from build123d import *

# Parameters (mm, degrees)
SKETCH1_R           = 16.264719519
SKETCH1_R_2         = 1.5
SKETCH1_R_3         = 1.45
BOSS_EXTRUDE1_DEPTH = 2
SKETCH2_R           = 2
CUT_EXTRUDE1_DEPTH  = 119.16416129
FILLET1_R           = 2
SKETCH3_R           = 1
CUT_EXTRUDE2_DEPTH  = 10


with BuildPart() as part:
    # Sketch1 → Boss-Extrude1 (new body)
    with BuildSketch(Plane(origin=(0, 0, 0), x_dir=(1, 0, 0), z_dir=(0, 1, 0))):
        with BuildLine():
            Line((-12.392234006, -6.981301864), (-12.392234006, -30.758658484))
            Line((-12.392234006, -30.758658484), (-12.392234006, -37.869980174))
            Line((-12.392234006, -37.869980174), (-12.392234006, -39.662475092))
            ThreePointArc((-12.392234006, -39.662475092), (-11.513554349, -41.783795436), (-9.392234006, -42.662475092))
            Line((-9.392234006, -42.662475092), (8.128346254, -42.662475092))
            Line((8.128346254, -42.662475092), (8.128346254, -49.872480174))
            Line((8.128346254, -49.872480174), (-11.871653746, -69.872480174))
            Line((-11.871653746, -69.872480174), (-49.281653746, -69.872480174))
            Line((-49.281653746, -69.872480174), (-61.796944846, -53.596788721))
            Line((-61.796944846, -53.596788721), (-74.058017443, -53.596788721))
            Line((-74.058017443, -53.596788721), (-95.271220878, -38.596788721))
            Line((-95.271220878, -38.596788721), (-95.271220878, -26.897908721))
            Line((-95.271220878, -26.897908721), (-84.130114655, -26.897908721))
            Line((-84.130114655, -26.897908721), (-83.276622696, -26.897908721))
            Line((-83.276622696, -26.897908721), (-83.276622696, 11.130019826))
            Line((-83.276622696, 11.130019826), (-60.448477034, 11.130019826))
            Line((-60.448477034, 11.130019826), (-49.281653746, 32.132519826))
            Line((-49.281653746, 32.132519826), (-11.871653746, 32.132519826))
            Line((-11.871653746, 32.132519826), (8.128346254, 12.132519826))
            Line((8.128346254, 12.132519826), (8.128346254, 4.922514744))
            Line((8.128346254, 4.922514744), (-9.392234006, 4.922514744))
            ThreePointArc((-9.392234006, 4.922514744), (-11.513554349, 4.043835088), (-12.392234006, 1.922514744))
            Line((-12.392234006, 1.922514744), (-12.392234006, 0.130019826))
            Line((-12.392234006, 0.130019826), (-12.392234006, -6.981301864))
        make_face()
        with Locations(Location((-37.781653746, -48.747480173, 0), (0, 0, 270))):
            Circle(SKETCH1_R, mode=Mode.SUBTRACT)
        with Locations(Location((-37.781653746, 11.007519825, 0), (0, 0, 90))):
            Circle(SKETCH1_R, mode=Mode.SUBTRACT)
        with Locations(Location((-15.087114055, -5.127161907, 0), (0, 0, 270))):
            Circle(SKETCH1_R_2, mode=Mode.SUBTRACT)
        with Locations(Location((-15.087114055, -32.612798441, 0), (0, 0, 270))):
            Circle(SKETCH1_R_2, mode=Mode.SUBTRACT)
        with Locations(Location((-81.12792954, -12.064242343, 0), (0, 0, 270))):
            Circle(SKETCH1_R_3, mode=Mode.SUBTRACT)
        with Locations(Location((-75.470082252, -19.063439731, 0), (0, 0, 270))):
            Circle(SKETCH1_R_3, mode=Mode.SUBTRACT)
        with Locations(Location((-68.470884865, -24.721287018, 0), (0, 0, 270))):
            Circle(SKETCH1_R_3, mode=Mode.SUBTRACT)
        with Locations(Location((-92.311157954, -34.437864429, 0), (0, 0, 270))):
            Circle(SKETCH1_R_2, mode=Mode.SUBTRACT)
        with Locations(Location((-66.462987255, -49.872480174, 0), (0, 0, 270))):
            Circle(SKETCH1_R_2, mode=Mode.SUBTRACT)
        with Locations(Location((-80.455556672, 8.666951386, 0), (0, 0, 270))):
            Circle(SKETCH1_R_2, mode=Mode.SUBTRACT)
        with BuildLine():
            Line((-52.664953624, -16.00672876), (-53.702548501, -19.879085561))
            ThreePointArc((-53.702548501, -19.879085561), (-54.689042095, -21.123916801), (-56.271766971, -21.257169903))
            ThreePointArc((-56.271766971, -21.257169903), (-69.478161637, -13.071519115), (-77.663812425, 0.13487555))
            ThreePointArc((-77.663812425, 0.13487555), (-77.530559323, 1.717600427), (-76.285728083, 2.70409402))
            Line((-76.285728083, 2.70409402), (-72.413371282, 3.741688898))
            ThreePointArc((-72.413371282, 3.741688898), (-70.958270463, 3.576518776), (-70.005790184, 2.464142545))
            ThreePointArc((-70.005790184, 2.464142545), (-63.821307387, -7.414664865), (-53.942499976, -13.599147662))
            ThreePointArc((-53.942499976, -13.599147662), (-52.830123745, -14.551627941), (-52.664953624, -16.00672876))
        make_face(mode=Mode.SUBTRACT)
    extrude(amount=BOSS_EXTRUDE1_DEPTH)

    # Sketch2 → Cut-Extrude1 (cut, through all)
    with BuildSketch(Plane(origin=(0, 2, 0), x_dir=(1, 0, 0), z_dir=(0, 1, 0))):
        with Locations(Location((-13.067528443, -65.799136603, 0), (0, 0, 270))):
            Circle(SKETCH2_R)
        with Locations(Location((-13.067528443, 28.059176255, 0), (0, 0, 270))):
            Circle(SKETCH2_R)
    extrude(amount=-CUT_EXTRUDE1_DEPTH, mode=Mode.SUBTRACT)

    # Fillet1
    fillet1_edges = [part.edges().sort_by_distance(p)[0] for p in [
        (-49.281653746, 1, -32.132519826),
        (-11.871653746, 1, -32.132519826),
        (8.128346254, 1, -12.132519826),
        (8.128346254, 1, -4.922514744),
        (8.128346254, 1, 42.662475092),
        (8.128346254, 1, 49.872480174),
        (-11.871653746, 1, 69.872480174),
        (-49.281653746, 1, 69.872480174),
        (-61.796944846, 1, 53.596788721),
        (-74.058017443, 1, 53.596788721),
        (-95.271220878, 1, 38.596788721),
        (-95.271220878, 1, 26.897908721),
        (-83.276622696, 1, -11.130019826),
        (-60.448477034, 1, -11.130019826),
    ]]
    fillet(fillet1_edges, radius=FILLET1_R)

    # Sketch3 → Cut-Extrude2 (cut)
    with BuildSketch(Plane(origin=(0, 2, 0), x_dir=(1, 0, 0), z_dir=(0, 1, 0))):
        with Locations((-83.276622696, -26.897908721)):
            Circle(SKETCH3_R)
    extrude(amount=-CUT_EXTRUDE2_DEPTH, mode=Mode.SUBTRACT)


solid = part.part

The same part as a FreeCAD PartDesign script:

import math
import FreeCAD as App
import Part
import Sketcher
from FreeCAD import Vector


def edges_at(feature, points):
    """Names of the edges that pass closest to the given points."""
    edges = feature.Shape.Edges
    near = lambda p: min(range(len(edges)), key=lambda i: edges[i].distToShape(Part.Vertex(*p))[0])
    return sorted({f"Edge{near(p) + 1}" for p in points})

doc = App.newDocument("Part")
body = doc.addObject("PartDesign::Body", "Body")

# Sketch on XZ plane
sketch1 = body.newObject("Sketcher::SketchObject", "Sketch")
sketch1.AttachmentSupport = (doc.getObject("XZ_Plane"), [""])
sketch1.MapMode = "FlatFace"
sketch1.addGeometry([
    Part.ArcOfCircle(Part.Circle(Vector(-9.392234, 39.662475, 0), Vector(0, 0, 1), 3), math.radians(90), math.radians(180)),  # 0
    Part.LineSegment(Vector(-12.392234, 39.662475, 0), Vector(-12.392234, -1.922515, 0)),  # 1
    Part.ArcOfCircle(Part.Circle(Vector(-9.392234, -1.922515, 0), Vector(0, 0, 1), 3), math.radians(180), math.radians(270)),  # 2
    Part.LineSegment(Vector(-9.392234, -4.922515, 0), Vector(8.128346, -4.922515, 0)),  # 3
    Part.LineSegment(Vector(8.128346, -4.922515, 0), Vector(8.128346, -12.13252, 0)),  # 4
    Part.LineSegment(Vector(8.128346, -12.13252, 0), Vector(-11.871654, -32.13252, 0)),  # 5
    Part.LineSegment(Vector(-11.871654, -32.13252, 0), Vector(-49.281654, -32.13252, 0)),  # 6
    Part.LineSegment(Vector(-49.281654, -32.13252, 0), Vector(-60.448477, -11.13002, 0)),  # 7
    Part.LineSegment(Vector(-60.448477, -11.13002, 0), Vector(-83.276623, -11.13002, 0)),  # 8
    Part.LineSegment(Vector(-83.276623, -11.13002, 0), Vector(-83.276623, 26.897909, 0)),  # 9
    Part.LineSegment(Vector(-83.276623, 26.897909, 0), Vector(-95.271221, 26.897909, 0)),  # 10
    Part.LineSegment(Vector(-95.271221, 26.897909, 0), Vector(-95.271221, 38.596789, 0)),  # 11
    Part.LineSegment(Vector(-95.271221, 38.596789, 0), Vector(-74.058017, 53.596789, 0)),  # 12
    Part.LineSegment(Vector(-74.058017, 53.596789, 0), Vector(-61.796945, 53.596789, 0)),  # 13
    Part.LineSegment(Vector(-61.796945, 53.596789, 0), Vector(-49.281654, 69.87248, 0)),  # 14
    Part.LineSegment(Vector(-49.281654, 69.87248, 0), Vector(-11.871654, 69.87248, 0)),  # 15
    Part.LineSegment(Vector(-11.871654, 69.87248, 0), Vector(8.128346, 49.87248, 0)),  # 16
    Part.LineSegment(Vector(8.128346, 49.87248, 0), Vector(8.128346, 42.662475, 0)),  # 17
    Part.LineSegment(Vector(8.128346, 42.662475, 0), Vector(-9.392234, 42.662475, 0)),  # 18
    Part.Circle(Vector(-37.781654, 48.74748, 0), Vector(0, 0, 1), 16.26472),  # 19
    Part.Circle(Vector(-15.087114, 32.612798, 0), Vector(0, 0, 1), 1.5),  # 20
    Part.Circle(Vector(-66.462987, 49.87248, 0), Vector(0, 0, 1), 1.5),  # 21
    Part.Circle(Vector(-68.470885, 24.721287, 0), Vector(0, 0, 1), 1.45),  # 22
    Part.Circle(Vector(-92.311158, 34.437864, 0), Vector(0, 0, 1), 1.5),  # 23
    Part.Circle(Vector(-75.470082, 19.06344, 0), Vector(0, 0, 1), 1.45),  # 24
    Part.Circle(Vector(-15.087114, 5.127162, 0), Vector(0, 0, 1), 1.5),  # 25
    Part.Circle(Vector(-37.781654, -11.00752, 0), Vector(0, 0, 1), 16.26472),  # 26
    Part.LineSegment(Vector(-52.664954, 16.006729, 0), Vector(-53.702549, 19.879086, 0)),  # 27
    Part.ArcOfCircle(Part.Circle(Vector(-55.6344, 19.361447, 0), Vector(0, 0, 1), 2), math.radians(15), math.radians(108.583322)),  # 28
    Part.ArcOfCircle(Part.Circle(Vector(-45.436531, -10.970111, 0), Vector(0, 0, 1), 34), math.radians(108.583322), math.radians(161.416678)),  # 29
    Part.ArcOfCircle(Part.Circle(Vector(-75.76809, -0.772242, 0), Vector(0, 0, 1), 2), math.radians(161.416678), math.radians(255)),  # 30
    Part.LineSegment(Vector(-76.285728, -2.704094, 0), Vector(-72.413371, -3.741689, 0)),  # 31
    Part.ArcOfCircle(Part.Circle(Vector(-71.895733, -1.809837, 0), Vector(0, 0, 1), 2), math.radians(-105), math.radians(-19.096044)),  # 32
    Part.ArcOfCircle(Part.Circle(Vector(-45.436531, -10.970111, 0), Vector(0, 0, 1), 26), math.radians(109.096044), math.radians(160.903956)),  # 33
    Part.ArcOfCircle(Part.Circle(Vector(-54.596805, 15.489091, 0), Vector(0, 0, 1), 2), math.radians(-70.903956), math.radians(15)),  # 34
    Part.Circle(Vector(-81.12793, 12.064242, 0), Vector(0, 0, 1), 1.45),  # 35
    Part.Circle(Vector(-80.455557, -8.666951, 0), Vector(0, 0, 1), 1.5),  # 36
], False)
sketch1.addConstraint([
    Sketcher.Constraint("Coincident", 0, 2, 1, 1),
    Sketcher.Constraint("Coincident", 1, 2, 2, 1),
    Sketcher.Constraint("Coincident", 2, 2, 3, 1),
    Sketcher.Constraint("Coincident", 3, 2, 4, 1),
    Sketcher.Constraint("Coincident", 4, 2, 5, 1),
    Sketcher.Constraint("Coincident", 5, 2, 6, 1),
    Sketcher.Constraint("Coincident", 6, 2, 7, 1),
    Sketcher.Constraint("Coincident", 7, 2, 8, 1),
    Sketcher.Constraint("Coincident", 8, 2, 9, 1),
    Sketcher.Constraint("Coincident", 9, 2, 10, 1),
    Sketcher.Constraint("Coincident", 10, 2, 11, 1),
    Sketcher.Constraint("Coincident", 11, 2, 12, 1),
    Sketcher.Constraint("Coincident", 12, 2, 13, 1),
    Sketcher.Constraint("Coincident", 13, 2, 14, 1),
    Sketcher.Constraint("Coincident", 14, 2, 15, 1),
    Sketcher.Constraint("Coincident", 15, 2, 16, 1),
    Sketcher.Constraint("Coincident", 16, 2, 17, 1),
    Sketcher.Constraint("Coincident", 17, 2, 18, 1),
    Sketcher.Constraint("Coincident", 18, 2, 0, 1),
    Sketcher.Constraint("Coincident", 27, 2, 28, 1),
    Sketcher.Constraint("Coincident", 28, 2, 29, 1),
    Sketcher.Constraint("Coincident", 29, 2, 30, 1),
    Sketcher.Constraint("Coincident", 30, 2, 31, 1),
    Sketcher.Constraint("Coincident", 31, 2, 32, 1),
    Sketcher.Constraint("Coincident", 32, 2, 33, 2),
    Sketcher.Constraint("Coincident", 33, 1, 34, 1),
    Sketcher.Constraint("Coincident", 34, 2, 27, 1),
    Sketcher.Constraint("Vertical", 1),
    Sketcher.Constraint("Horizontal", 3),
    Sketcher.Constraint("Vertical", 4),
    Sketcher.Constraint("Horizontal", 6),
    Sketcher.Constraint("Horizontal", 8),
    Sketcher.Constraint("Vertical", 9),
    Sketcher.Constraint("Horizontal", 10),
    Sketcher.Constraint("Vertical", 11),
    Sketcher.Constraint("Horizontal", 13),
    Sketcher.Constraint("Horizontal", 15),
    Sketcher.Constraint("Vertical", 17),
    Sketcher.Constraint("Horizontal", 18),
    Sketcher.Constraint("Coincident", 33, 3, 29, 3),
    Sketcher.Constraint("Diameter", 20, 3.0),
    Sketcher.Constraint("Diameter", 21, 3.0),
    Sketcher.Constraint("Diameter", 23, 3.0),
    Sketcher.Constraint("Diameter", 25, 3.0),
    Sketcher.Constraint("Diameter", 36, 3.0),
    Sketcher.Constraint("Radius", 0, 3.0),
    Sketcher.Constraint("Radius", 2, 3.0),
    Sketcher.Constraint("Radius", 28, 2.0),
    Sketcher.Constraint("Radius", 29, 34.0),
    Sketcher.Constraint("Radius", 30, 2.0),
    Sketcher.Constraint("Radius", 32, 2.0),
    Sketcher.Constraint("Radius", 33, 26.0),
    Sketcher.Constraint("Radius", 34, 2.0),
    Sketcher.Constraint("Diameter", 22, 2.9),
    Sketcher.Constraint("Diameter", 24, 2.9),
    Sketcher.Constraint("Diameter", 35, 2.9),
    Sketcher.Constraint("DistanceX", 1, 2, 2, 2, 3.0),
    Sketcher.Constraint("DistanceY", 2, 2, 1, 2, 3.0),
    Sketcher.Constraint("DistanceX", 5, 2, 4, 2, 20.0),
    Sketcher.Constraint("DistanceY", 5, 2, 4, 2, 20.0),
    Sketcher.Constraint("DistanceY", 11, 2, 12, 2, 15.0),
    Sketcher.Constraint("DistanceY", 21, 3, 14, 2, 20.0),
    Sketcher.Constraint("DistanceX", 15, 2, 16, 2, 20.0),
    Sketcher.Constraint("DistanceY", 16, 2, 15, 2, 20.0),
    Sketcher.Constraint("DistanceY", 0, 2, 17, 2, 3.0),
    Sketcher.Constraint("DistanceX", 0, 2, 18, 2, 3.0),
    Sketcher.Constraint("DistanceX", 6, 2, 6, 1, 37.41),
    Sketcher.Constraint("DistanceX", 15, 1, 15, 2, 37.41),
    Sketcher.Constraint("DistanceX", 6, 2, 26, 3, 11.5),
    Sketcher.Constraint("DistanceX", 14, 2, 19, 3, 11.5),
    Sketcher.Constraint("Diameter", 19, 32.529439),
    Sketcher.Constraint("Diameter", 26, 32.529439),
    Sketcher.Constraint("DistanceX", 10, 2, 10, 1, 11.994598),
    Sketcher.Constraint("DistanceY", 19, 3, 21, 3, 1.125),
    Sketcher.Constraint("DistanceY", 5, 2, 26, 3, 21.125),
    Sketcher.Constraint("DistanceX", 3, 1, 3, 2, 17.52058),
    Sketcher.Constraint("DistanceX", 18, 2, 18, 1, 17.52058),
    Sketcher.Constraint("DistanceY", 1, 2, 1, 1, 41.58499),
    Sketcher.Constraint("DistanceY", 9, 1, 9, 2, 38.027929),
    Sketcher.Constraint("DistanceY", 11, 1, 11, 2, 11.69888),
    Sketcher.Constraint("DistanceY", -1, 1, 20, 3, 32.612798),
    Sketcher.Constraint("DistanceX", 28, 3, -1, 1, 55.6344),
    Sketcher.Constraint("DistanceX", 33, 1, -1, 1, 53.9425),
    Sketcher.Constraint("DistanceY", 2, 3, 22, 3, 26.643802),
    Sketcher.Constraint("DistanceY", 22, 3, 12, 2, 28.875502),
    Sketcher.Constraint("DistanceY", 27, 2, 22, 3, 4.842201),
    Sketcher.Constraint("DistanceX", 30, 3, 32, 2, 5.7623),
    Sketcher.Constraint("DistanceY", 32, 2, 30, 3, 1.6919),
    Sketcher.Constraint("Distance", 14, 20.531211),
    Sketcher.Constraint("Distance", 27, 4.008959),
    Sketcher.Constraint("Distance", 31, 4.008959),
    Sketcher.Constraint("DistanceX", 8, 2, 8, 1, 22.828146),
    Sketcher.Constraint("DistanceX", 13, 1, 13, 2, 12.261073),
    Sketcher.Constraint("DistanceY", 4, 2, 4, 1, 7.210005),
    Sketcher.Constraint("DistanceY", 17, 2, 17, 1, 7.210005),
    Sketcher.Constraint("DistanceY", -1, 1, 19, 3, 48.74748),
    Sketcher.Constraint("DistanceY", -1, 1, 24, 3, 19.06344),
    Sketcher.Constraint("DistanceY", -1, 1, 25, 3, 5.127162),
    Sketcher.Constraint("DistanceX", 29, 3, -1, 1, 45.436531),
    Sketcher.Constraint("DistanceY", 29, 3, -1, 1, 10.970111),
    Sketcher.Constraint("DistanceY", -1, 1, 34, 3, 15.489091),
    Sketcher.Constraint("DistanceX", 35, 3, -1, 1, 81.12793),
    Sketcher.Constraint("DistanceY", 36, 3, -1, 1, 8.666951),
    Sketcher.Constraint("DistanceX", 10, 2, -1, 1, 95.271221),
    Sketcher.Constraint("DistanceY", -1, 1, 28, 2, 21.25717),
    Sketcher.Constraint("DistanceX", 30, 2, -1, 1, 76.285728),
    Sketcher.Constraint("DistanceX", 31, 2, -1, 1, 72.413371),
    Sketcher.Constraint("DistanceX", 20, 3, 0, 3, 5.69488),
    Sketcher.Constraint("DistanceX", 22, 3, 19, 3, 30.689231),
    Sketcher.Constraint("DistanceX", 23, 3, 21, 3, 25.848171),
    Sketcher.Constraint("DistanceY", 23, 3, 0, 3, 5.224611),
    Sketcher.Constraint("DistanceX", 24, 3, 19, 3, 37.688429),
    Sketcher.Constraint("DistanceX", 25, 3, 2, 3, 5.69488),
    Sketcher.Constraint("DistanceX", 24, 3, 29, 3, 30.033551),
    Sketcher.Constraint("DistanceY", 32, 3, 35, 3, 13.87408),
    Sketcher.Constraint("DistanceX", 23, 3, 35, 3, 11.183228),
    Sketcher.Constraint("DistanceX", 36, 3, 7, 2, 20.00708),
    Sketcher.Constraint("DistanceX", 29, 2, 32, 3, 5.768079),
])
pad1 = body.newObject("PartDesign::Pad", "Pad")
pad1.Profile = sketch1
pad1.Length = 2
pad1.Reversed = True

# Sketch on XZ plane
sketch2 = body.newObject("Sketcher::SketchObject", "Sketch001")
sketch2.AttachmentSupport = (doc.getObject("XZ_Plane"), [""])
sketch2.MapMode = "FlatFace"
sketch2.AttachmentOffset = App.Placement(Vector(0, 0, -2), App.Rotation())
sketch2.addGeometry([
    Part.Circle(Vector(-13.1, 65.8, 0), Vector(0, 0, 1), 2),
    Part.Circle(Vector(-13.1, -28.1, 0), Vector(0, 0, 1), 2),
], False)
sketch2.addConstraint([
    Sketcher.Constraint("Equal", 0, 1),
    Sketcher.Constraint("Vertical", 0, 3, 1, 3),
    Sketcher.Constraint("Diameter", 0, 4.0),
    Sketcher.Constraint("DistanceX", 0, 3, -1, 1, 13.067528),
    Sketcher.Constraint("DistanceY", -1, 1, 0, 3, 65.799137),
    Sketcher.Constraint("DistanceY", 1, 3, -1, 1, 28.059176),
])
pocket1 = body.newObject("PartDesign::Pocket", "Pocket")
pocket1.Profile = sketch2
pocket1.Type = "ThroughAll"
pocket1.Reversed = True
doc.recompute()

fillet = body.newObject("PartDesign::Fillet", "Fillet")
fillet.Base = (pocket1, edges_at(pocket1, [
    (-49.282, 1, -32.133),
    (-11.872, 1, -32.133),
    (8.128, 1, -12.133),
    (8.128, 1, -4.923),
    (8.128, 1, 42.662),
    (8.128, 1, 49.872),
    (-11.872, 1, 69.872),
    (-49.282, 1, 69.872),
    (-61.797, 1, 53.597),
    (-74.058, 1, 53.597),
    (-95.271, 1, 38.597),
    (-95.271, 1, 26.898),
    (-83.277, 1, -11.13),
    (-60.448, 1, -11.13),
]))
fillet.Radius = 2

# Sketch on XZ plane
sketch3 = body.newObject("Sketcher::SketchObject", "Sketch002")
sketch3.AttachmentSupport = (doc.getObject("XZ_Plane"), [""])
sketch3.MapMode = "FlatFace"
sketch3.AttachmentOffset = App.Placement(Vector(0, 0, -2), App.Rotation())
sketch3.addGeometry(Part.Circle(Vector(-83.3, 26.9, 0), Vector(0, 0, 1), 1), False)
sketch3.addConstraint([
    Sketcher.Constraint("Diameter", 0, 2.0),
    Sketcher.Constraint("DistanceY", -1, 1, 0, 3, 26.897909),
    Sketcher.Constraint("DistanceX", 0, 3, -1, 1, 83.276623),
])
pocket2 = body.newObject("PartDesign::Pocket", "Pocket001")
pocket2.Profile = sketch3
pocket2.Length = 10
pocket2.Reversed = True

doc.recompute()
